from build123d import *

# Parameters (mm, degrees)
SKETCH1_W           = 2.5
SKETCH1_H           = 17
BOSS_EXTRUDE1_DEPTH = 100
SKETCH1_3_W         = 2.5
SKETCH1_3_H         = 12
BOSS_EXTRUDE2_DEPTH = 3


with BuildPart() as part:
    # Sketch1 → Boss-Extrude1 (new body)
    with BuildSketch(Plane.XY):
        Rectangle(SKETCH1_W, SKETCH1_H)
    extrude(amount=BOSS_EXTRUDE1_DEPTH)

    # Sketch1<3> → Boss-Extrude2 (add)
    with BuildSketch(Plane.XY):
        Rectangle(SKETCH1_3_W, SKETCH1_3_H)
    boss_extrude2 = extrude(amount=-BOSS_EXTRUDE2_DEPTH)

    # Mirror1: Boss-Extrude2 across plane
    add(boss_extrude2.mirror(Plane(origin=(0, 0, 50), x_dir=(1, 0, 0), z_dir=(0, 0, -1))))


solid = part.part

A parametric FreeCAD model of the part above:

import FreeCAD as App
import Part
import Sketcher

V = App.Vector
Q = App.Units.Quantity


def add_polygon(sketch, points):
    """Adds a closed chain of lines whose ends are joined by coincident constraints."""
    first, n = sketch.GeometryCount, len(points)
    for a, b in zip(points, points[1:] + points[:1]):
        sketch.addGeometry(Part.LineSegment(App.Vector(*a, 0), App.Vector(*b, 0)), False)
    for i in range(n):
        sketch.addConstraint(Sketcher.Constraint("Coincident", first + i, 2, first + (i + 1) % n, 1))

doc = App.newDocument("Part")
params = doc.addObject("Spreadsheet::Sheet", "Params")
for row, (alias, value) in enumerate([
    ("sketch1_height", "17 mm"),
    ("sketch1_width", "2.5 mm"),
    ("pad1_length", "100 mm"),
    ("sketch2_height", "12 mm"),
    ("sketch2_width", "2.5 mm"),
    ("pad2_length", "3 mm"),
], start=1):
    params.set(f"A{row}", alias)
    params.set(f"B{row}", "=" + value)
    params.setAlias(f"B{row}", alias)

body = doc.addObject("PartDesign::Body", "Body")

sketch1 = body.newObject("Sketcher::SketchObject", "Sketch")
sketch1.AttachmentSupport = (doc.getObject("XY_Plane"), [""])
sketch1.MapMode = "FlatFace"
add_polygon(sketch1, [(-1.2, 8.5), (-1.2, -8.5), (1.2, -8.5), (1.2, 8.5)])
sketch1.addConstraint(Sketcher.Constraint("Vertical", 0))
sketch1.addConstraint(Sketcher.Constraint("Horizontal", 1))
sketch1.addConstraint(Sketcher.Constraint("Vertical", 2))
sketch1.addConstraint(Sketcher.Constraint("Horizontal", 3))
sketch1.addConstraint(Sketcher.Constraint("Symmetric", 0, 2, 2, 2, -1, 1))
sketch1.addConstraint(Sketcher.Constraint("DistanceY", 0, 2, 0, 1, Q("17 mm")))
sketch1.addConstraint(Sketcher.Constraint("DistanceX", 1, 1, 1, 2, Q("2.5 mm")))
sketch1.setExpression("Constraints[9]", "Params.sketch1_height")
sketch1.setExpression("Constraints[10]", "Params.sketch1_width")
pad1 = body.newObject("PartDesign::Pad", "Pad")
pad1.Profile = sketch1
pad1.setExpression("Length", "Params.pad1_length")

sketch2 = body.newObject("Sketcher::SketchObject", "Sketch001")
sketch2.AttachmentSupport = (doc.getObject("XY_Plane"), [""])
sketch2.MapMode = "FlatFace"
add_polygon(sketch2, [(-1.2, 6), (-1.2, -6), (1.2, -6), (1.2, 6)])
sketch2.addConstraint(Sketcher.Constraint("Vertical", 0))
sketch2.addConstraint(Sketcher.Constraint("Horizontal", 1))
sketch2.addConstraint(Sketcher.Constraint("Vertical", 2))
sketch2.addConstraint(Sketcher.Constraint("Horizontal", 3))
sketch2.addConstraint(Sketcher.Constraint("Symmetric", 0, 2, 2, 2, -1, 1))
sketch2.addConstraint(Sketcher.Constraint("DistanceY", 0, 2, 0, 1, Q("12 mm")))
sketch2.addConstraint(Sketcher.Constraint("DistanceX", 1, 1, 1, 2, Q("2.5 mm")))
sketch2.setExpression("Constraints[9]", "Params.sketch2_height")
sketch2.setExpression("Constraints[10]", "Params.sketch2_width")
pad2 = body.newObject("PartDesign::Pad", "Pad001")
pad2.Profile = sketch2
pad2.setExpression("Length", "Params.pad2_length")
pad2.Reversed = True
doc.recompute()

datumplane = body.newObject("PartDesign::Plane", "DatumPlane")
datumplane.AttachmentSupport = (doc.getObject("XY_Plane"), [""])
datumplane.MapMode = "FlatFace"
datumplane.AttachmentOffset = App.Placement(V(0, 0, 50), App.Rotation())
mirrored = body.newObject("PartDesign::Mirrored", "Mirrored")
mirrored.Originals = [pad2]
mirrored.MirrorPlane = (datumplane, [""])
body.Tip = mirrored

doc.recompute()
